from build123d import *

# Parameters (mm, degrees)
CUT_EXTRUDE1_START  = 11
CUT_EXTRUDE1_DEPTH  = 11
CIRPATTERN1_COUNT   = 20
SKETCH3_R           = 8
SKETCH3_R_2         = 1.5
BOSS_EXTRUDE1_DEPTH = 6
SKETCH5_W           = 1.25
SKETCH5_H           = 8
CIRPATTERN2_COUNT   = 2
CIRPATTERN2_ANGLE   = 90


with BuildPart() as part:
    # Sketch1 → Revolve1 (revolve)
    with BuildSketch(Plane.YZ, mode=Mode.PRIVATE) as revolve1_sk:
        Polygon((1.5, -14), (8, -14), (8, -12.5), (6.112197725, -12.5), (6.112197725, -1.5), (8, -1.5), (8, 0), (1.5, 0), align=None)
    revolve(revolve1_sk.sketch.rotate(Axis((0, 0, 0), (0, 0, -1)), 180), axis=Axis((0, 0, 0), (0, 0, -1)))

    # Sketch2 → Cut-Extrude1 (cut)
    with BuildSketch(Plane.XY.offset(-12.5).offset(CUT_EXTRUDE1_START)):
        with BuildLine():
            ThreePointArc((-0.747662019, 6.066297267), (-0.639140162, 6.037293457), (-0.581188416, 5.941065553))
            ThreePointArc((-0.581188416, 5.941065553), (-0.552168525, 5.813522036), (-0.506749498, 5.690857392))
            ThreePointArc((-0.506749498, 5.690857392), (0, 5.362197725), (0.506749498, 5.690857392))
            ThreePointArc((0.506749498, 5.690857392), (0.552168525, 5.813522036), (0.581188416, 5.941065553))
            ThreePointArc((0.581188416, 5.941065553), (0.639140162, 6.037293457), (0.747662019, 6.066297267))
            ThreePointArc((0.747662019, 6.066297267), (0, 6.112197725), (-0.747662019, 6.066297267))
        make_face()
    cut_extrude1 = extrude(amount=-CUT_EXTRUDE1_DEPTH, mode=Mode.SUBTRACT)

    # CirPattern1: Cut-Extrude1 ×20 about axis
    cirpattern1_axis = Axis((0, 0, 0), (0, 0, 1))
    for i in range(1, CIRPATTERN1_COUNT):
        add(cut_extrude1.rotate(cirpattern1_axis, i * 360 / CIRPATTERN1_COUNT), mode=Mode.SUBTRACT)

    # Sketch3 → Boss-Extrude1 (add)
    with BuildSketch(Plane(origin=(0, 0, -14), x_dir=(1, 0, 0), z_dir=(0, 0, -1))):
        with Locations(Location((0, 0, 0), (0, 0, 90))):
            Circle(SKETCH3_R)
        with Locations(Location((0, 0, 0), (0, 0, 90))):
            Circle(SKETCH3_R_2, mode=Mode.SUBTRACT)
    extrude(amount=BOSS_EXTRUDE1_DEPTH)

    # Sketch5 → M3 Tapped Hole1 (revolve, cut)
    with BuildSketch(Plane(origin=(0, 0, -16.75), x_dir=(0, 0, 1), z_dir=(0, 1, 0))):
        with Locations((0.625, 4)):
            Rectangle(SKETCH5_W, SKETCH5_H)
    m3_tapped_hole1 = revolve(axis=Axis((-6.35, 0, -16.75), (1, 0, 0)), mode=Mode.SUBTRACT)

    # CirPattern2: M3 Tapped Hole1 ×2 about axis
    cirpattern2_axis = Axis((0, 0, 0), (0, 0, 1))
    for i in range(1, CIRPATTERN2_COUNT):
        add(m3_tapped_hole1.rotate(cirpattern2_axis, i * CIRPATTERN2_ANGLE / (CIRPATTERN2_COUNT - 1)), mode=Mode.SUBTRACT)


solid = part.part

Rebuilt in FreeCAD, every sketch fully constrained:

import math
import FreeCAD as App
import Part
import Sketcher

V = App.Vector
Q = App.Units.Quantity


def add_polygon(sketch, points):
    """Adds a closed chain of lines whose ends are joined by coincident constraints."""
    first, n = sketch.GeometryCount, len(points)
    for a, b in zip(points, points[1:] + points[:1]):
        sketch.addGeometry(Part.LineSegment(App.Vector(*a, 0), App.Vector(*b, 0)), False)
    for i in range(n):
        sketch.addConstraint(Sketcher.Constraint("Coincident", first + i, 2, first + (i + 1) % n, 1))

doc = App.newDocument("Part")
body = doc.addObject("PartDesign::Body", "Body")

sketch1 = body.newObject("Sketcher::SketchObject", "Sketch")
sketch1.AttachmentSupport = (doc.getObject("YZ_Plane"), [""])
sketch1.MapMode = "FlatFace"
add_polygon(sketch1, [(1.5, -14), (8, -14), (8, -12.5), (6.1, -12.5), (6.1, -1.5), (8, -1.5), (8, 0), (1.5, 0)])
sketch1.addConstraint([
    Sketcher.Constraint("Horizontal", 0),
    Sketcher.Constraint("Vertical", 1),
    Sketcher.Constraint("Horizontal", 2),
    Sketcher.Constraint("Vertical", 3),
    Sketcher.Constraint("Horizontal", 4),
    Sketcher.Constraint("Vertical", 5),
    Sketcher.Constraint("Horizontal", 6),
    Sketcher.Constraint("Vertical", 7),
    Sketcher.Constraint("PointOnObject", 5, 2, -1),
    Sketcher.Constraint("Vertical", 1, 2, 4, 2),
    Sketcher.Constraint("Equal", 1, 5),
    Sketcher.Constraint("DistanceY", 3, 1, 3, 2, Q("11 mm")),
    Sketcher.Constraint("DistanceY", 7, 2, 7, 1, Q("14 mm")),
    Sketcher.Constraint("DistanceX", 0, 1, 0, 2, Q("6.5 mm")),
    Sketcher.Constraint("DistanceX", -1, 1, 0, 2, Q("8 mm")),
    Sketcher.Constraint("DistanceX", 2, 2, 2, 1, Q("1.887802 mm")),
])
revolution = body.newObject("PartDesign::Revolution", "Revolution")
revolution.Profile = sketch1
revolution.ReferenceAxis = (sketch1, ["V_Axis"])
revolution.Angle = 360

sketch2 = body.newObject("Sketcher::SketchObject", "Sketch001")
sketch2.AttachmentSupport = (doc.getObject("XY_Plane"), [""])
sketch2.MapMode = "FlatFace"
sketch2.AttachmentOffset = App.Placement(V(0, 0, -1.5), App.Rotation())
sketch2.addGeometry([
    Part.ArcOfCircle(Part.Circle(V(-0.73, 5.92, 0), V(0, 0, 1), 0.15), math.radians(9), math.radians(97)),
    Part.ArcOfCircle(Part.Circle(V(0.41, 6.1, 0), V(0, 0, 1), 1), math.radians(-170.93), math.radians(-155.93)),
    Part.ArcOfCircle(Part.Circle(V(0, 5.92, 0), V(0, 0, 1), 0.56), math.radians(-156), math.radians(-24)),
    Part.ArcOfCircle(Part.Circle(V(-0.41, 6.1, 0), V(0, 0, 1), 1), math.radians(-24.07), math.radians(-9.07)),
    Part.ArcOfCircle(Part.Circle(V(0.73, 5.92, 0), V(0, 0, 1), 0.15), math.radians(83), math.radians(171)),
    Part.ArcOfCircle(Part.Circle(V(0, 0, 0), V(0, 0, 1), 6.11), math.radians(82.97), math.radians(97.03)),
], False)
sketch2.addConstraint([
    Sketcher.Constraint("Tangent", 0, 1, 1, 1),
    Sketcher.Constraint("Tangent", 1, 2, 2, 1),
    Sketcher.Constraint("Tangent", 2, 2, 3, 1),
    Sketcher.Constraint("Tangent", 3, 2, 4, 2),
    Sketcher.Constraint("Tangent", 4, 1, 5, 1),
    Sketcher.Constraint("Tangent", 5, 2, 0, 2),
    Sketcher.Constraint("Coincident", 5, 3, -1, 1),
    Sketcher.Constraint("Equal", 1, 3),
    Sketcher.Constraint("Equal", 0, 4),
    Sketcher.Constraint("Symmetric", 1, 3, 3, 3, -2),
    Sketcher.Constraint("Radius", 1, Q("1 mm")),
    Sketcher.Constraint("Radius", 0, Q("0.15 mm")),
    Sketcher.Constraint("Radius", 2, Q("0.555 mm")),
    Sketcher.Constraint("Radius", 5, Q("6.112198 mm")),
    Sketcher.Constraint("DistanceX", 0, 3, 3, 3, Q("0.323001 mm")),
    Sketcher.Constraint("DistanceX", 0, 1, 1, 3, Q("0.987501 mm")),
])
pocket1 = body.newObject("PartDesign::Pocket", "Pocket")
pocket1.Profile = sketch2
pocket1.Length = 11
doc.recompute()

polarpattern = body.newObject("PartDesign::PolarPattern", "PolarPattern")
polarpattern.Originals = [pocket1]
polarpattern.Axis = (doc.getObject("Z_Axis"), [""])
polarpattern.Angle = 360
polarpattern.Occurrences = 20
body.Tip = polarpattern

sketch3 = body.newObject("Sketcher::SketchObject", "Sketch002")
sketch3.AttachmentSupport = (doc.getObject("XY_Plane"), [""])
sketch3.MapMode = "FlatFace"
sketch3.AttachmentOffset = App.Placement(V(0, 0, -14), App.Rotation())
sketch3.addGeometry([
    Part.Circle(V(0, 0, 0), V(0, 0, 1), 8),
    Part.Circle(V(0, 0, 0), V(0, 0, 1), 1.5),
], False)
sketch3.addConstraint([
    Sketcher.Constraint("Coincident", 0, 3, -1, 1),
    Sketcher.Constraint("Coincident", 1, 3, -1, 1),
    Sketcher.Constraint("Diameter", 0, Q("16 mm")),
    Sketcher.Constraint("Diameter", 1, Q("3 mm")),
])
pad1 = body.newObject("PartDesign::Pad", "Pad")
pad1.Profile = sketch3
pad1.Length = 6
pad1.Reversed = True

sketch4 = body.newObject("Sketcher::SketchObject", "Sketch003")
sketch4.AttachmentSupport = (doc.getObject("XZ_Plane"), [""])
sketch4.MapMode = "FlatFace"
add_polygon(sketch4, [(8, -16.8), (0, -16.8), (0, -15.5), (8, -15.5)])
sketch4.addGeometry(Part.LineSegment(V(0, -16.8, 0), V(8, -16.8, 0)), True)
sketch4.addConstraint([
    Sketcher.Constraint("Horizontal", 0),
    Sketcher.Constraint("Vertical", 1),
    Sketcher.Constraint("Horizontal", 2),
    Sketcher.Constraint("Vertical", 3),
    Sketcher.Constraint("Horizontal", 4),
    Sketcher.Constraint("Coincident", 4, 1, 0, 2),
    Sketcher.Constraint("PointOnObject", 0, 2, -2),
    Sketcher.Constraint("Vertical", 2, 2, 4, 2),
    Sketcher.Constraint("DistanceX", 0, 2, 0, 1, Q("8 mm")),
    Sketcher.Constraint("DistanceY", 1, 1, 1, 2, Q("1.25 mm")),
    Sketcher.Constraint("DistanceY", 1, 2, -1, 1, Q("15.5 mm")),
])
groove = body.newObject("PartDesign::Groove", "Groove")
groove.Profile = sketch4
groove.ReferenceAxis = (sketch4, ["Axis0"])
groove.Angle = 360
doc.recompute()

polarpattern2 = body.newObject("PartDesign::PolarPattern", "PolarPattern001")
polarpattern2.Originals = [groove]
polarpattern2.Axis = (doc.getObject("Z_Axis"), [""])
polarpattern2.Angle = 90
polarpattern2.Occurrences = 2
body.Tip = polarpattern2

doc.recompute()
